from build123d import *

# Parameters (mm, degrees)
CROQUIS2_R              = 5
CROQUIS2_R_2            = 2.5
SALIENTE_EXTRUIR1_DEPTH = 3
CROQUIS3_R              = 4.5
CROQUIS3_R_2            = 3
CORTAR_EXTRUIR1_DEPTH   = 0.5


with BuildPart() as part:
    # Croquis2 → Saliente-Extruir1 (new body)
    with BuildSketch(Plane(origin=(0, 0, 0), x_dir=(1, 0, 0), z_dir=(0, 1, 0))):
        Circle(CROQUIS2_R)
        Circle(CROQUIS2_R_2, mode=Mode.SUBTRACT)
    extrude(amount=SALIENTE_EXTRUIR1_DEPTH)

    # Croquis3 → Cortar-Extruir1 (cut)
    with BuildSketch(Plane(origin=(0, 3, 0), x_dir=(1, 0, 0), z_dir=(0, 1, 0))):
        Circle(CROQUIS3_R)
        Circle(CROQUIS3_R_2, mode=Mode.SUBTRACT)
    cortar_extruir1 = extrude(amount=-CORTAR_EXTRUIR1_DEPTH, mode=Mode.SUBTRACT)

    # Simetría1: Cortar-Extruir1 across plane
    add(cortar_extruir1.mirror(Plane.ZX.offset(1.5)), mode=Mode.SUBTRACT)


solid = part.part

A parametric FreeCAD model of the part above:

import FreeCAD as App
import Part
import Sketcher

V = App.Vector

doc = App.newDocument("Part")
params = doc.addObject("Spreadsheet::Sheet", "Params")
for row, (alias, value) in enumerate([
    ("sketch1_diameter", "10 mm"),
    ("sketch1_diameter2", "5 mm"),
    ("pad1_length", "3 mm"),
    ("sketch2_diameter", "9 mm"),
    ("sketch2_diameter2", "6 mm"),
    ("pocket1_length", "0.5 mm"),
], start=1):
    params.set(f"A{row}", alias)
    params.set(f"B{row}", "=" + value)
    params.setAlias(f"B{row}", alias)

body = doc.addObject("PartDesign::Body", "Body")

# Sketch on XZ plane
sketch1 = body.newObject("Sketcher::SketchObject", "Sketch")
sketch1.AttachmentSupport = (doc.getObject("XZ_Plane"), [""])
sketch1.MapMode = "FlatFace"
sketch1.addGeometry([
    Part.Circle(V(0, 0, 0), V(0, 0, 1), 5),
    Part.Circle(V(0, 0, 0), V(0, 0, 1), 2.5),
], False)
sketch1.addConstraint([
    Sketcher.Constraint("Coincident", 0, 3, -1, 1),
    Sketcher.Constraint("Coincident", 1, 3, -1, 1),
    Sketcher.Constraint("Diameter", 0, 10.0),
    Sketcher.Constraint("Diameter", 1, 5.0),
])
sketch1.setExpression("Constraints[2]", "Params.sketch1_diameter")
sketch1.setExpression("Constraints[3]", "Params.sketch1_diameter2")
pad1 = body.newObject("PartDesign::Pad", "Pad")
pad1.Profile = sketch1
pad1.setExpression("Length", "Params.pad1_length")
pad1.Reversed = True

# Sketch on XZ plane
sketch2 = body.newObject("Sketcher::SketchObject", "Sketch001")
sketch2.AttachmentSupport = (doc.getObject("XZ_Plane"), [""])
sketch2.MapMode = "FlatFace"
sketch2.AttachmentOffset = App.Placement(V(0, 0, -3), App.Rotation())
sketch2.addGeometry([
    Part.Circle(V(0, 0, 0), V(0, 0, 1), 4.5),
    Part.Circle(V(0, 0, 0), V(0, 0, 1), 3),
], False)
sketch2.addConstraint([
    Sketcher.Constraint("Coincident", 0, 3, -1, 1),
    Sketcher.Constraint("Coincident", 1, 3, -1, 1),
    Sketcher.Constraint("Diameter", 0, 9.0),
    Sketcher.Constraint("Diameter", 1, 6.0),
])
sketch2.setExpression("Constraints[2]", "Params.sketch2_diameter")
sketch2.setExpression("Constraints[3]", "Params.sketch2_diameter2")
pocket1 = body.newObject("PartDesign::Pocket", "Pocket")
pocket1.Profile = sketch2
pocket1.setExpression("Length", "Params.pocket1_length")
pocket1.Reversed = True
doc.recompute()

datumplane = body.newObject("PartDesign::Plane", "DatumPlane")
datumplane.AttachmentSupport = (doc.getObject("XZ_Plane"), [""])
datumplane.MapMode = "FlatFace"
datumplane.AttachmentOffset = App.Placement(V(0, 0, -1.5), App.Rotation())
mirrored = body.newObject("PartDesign::Mirrored", "Mirrored")
mirrored.Originals = [pocket1]
mirrored.MirrorPlane = (datumplane, [""])
body.Tip = mirrored

doc.recompute()
